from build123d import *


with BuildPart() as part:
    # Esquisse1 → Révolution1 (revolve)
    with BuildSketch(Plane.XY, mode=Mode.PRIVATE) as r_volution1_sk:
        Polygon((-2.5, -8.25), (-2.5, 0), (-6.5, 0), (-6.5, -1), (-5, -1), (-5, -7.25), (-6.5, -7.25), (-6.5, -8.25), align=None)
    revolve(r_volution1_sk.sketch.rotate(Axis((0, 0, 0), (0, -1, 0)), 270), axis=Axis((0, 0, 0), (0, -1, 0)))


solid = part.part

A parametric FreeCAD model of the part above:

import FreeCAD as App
import Part
import Sketcher
from FreeCAD import Vector
Q = App.Units.Quantity


def add_polygon(sketch, points):
    """Adds a closed chain of lines whose ends are joined by coincident constraints."""
    first, n = sketch.GeometryCount, len(points)
    for a, b in zip(points, points[1:] + points[:1]):
        sketch.addGeometry(Part.LineSegment(App.Vector(*a, 0), App.Vector(*b, 0)), False)
    for i in range(n):
        sketch.addConstraint(Sketcher.Constraint("Coincident", first + i, 2, first + (i + 1) % n, 1))

doc = App.newDocument("Part")
body = doc.addObject("PartDesign::Body", "Body")

sketch1 = body.newObject("Sketcher::SketchObject", "Sketch")
sketch1.AttachmentSupport = (doc.getObject("XY_Plane"), [""])
sketch1.MapMode = "FlatFace"
add_polygon(sketch1, [(-2.5, -8.2), (-2.5, 0), (-6.5, 0), (-6.5, -1), (-5, -1), (-5, -7.2), (-6.5, -7.2), (-6.5, -8.2)])
sketch1.addConstraint([
    Sketcher.Constraint("Vertical", 0),
    Sketcher.Constraint("Horizontal", 1),
    Sketcher.Constraint("Vertical", 2),
    Sketcher.Constraint("Horizontal", 3),
    Sketcher.Constraint("Vertical", 4),
    Sketcher.Constraint("Horizontal", 5),
    Sketcher.Constraint("Vertical", 6),
    Sketcher.Constraint("Horizontal", 7),
    Sketcher.Constraint("PointOnObject", 0, 2, -1),
    Sketcher.Constraint("Vertical", 2, 2, 5, 2),
    Sketcher.Constraint("Equal", 2, 6),
    Sketcher.Constraint("DistanceX", 1, 2, 1, 1, Q("4 mm")),
    Sketcher.Constraint("DistanceY", 2, 2, 2, 1, Q("1 mm")),
    Sketcher.Constraint("DistanceX", 3, 1, 3, 2, Q("1.5 mm")),
    Sketcher.Constraint("DistanceX", 3, 2, -1, 1, Q("5 mm")),
    Sketcher.Constraint("DistanceY", 0, 1, 0, 2, Q("8.25 mm")),
])
revolution = body.newObject("PartDesign::Revolution", "Revolution")
revolution.Profile = sketch1
revolution.ReferenceAxis = (sketch1, ["V_Axis"])
revolution.Angle = 360

doc.recompute()
